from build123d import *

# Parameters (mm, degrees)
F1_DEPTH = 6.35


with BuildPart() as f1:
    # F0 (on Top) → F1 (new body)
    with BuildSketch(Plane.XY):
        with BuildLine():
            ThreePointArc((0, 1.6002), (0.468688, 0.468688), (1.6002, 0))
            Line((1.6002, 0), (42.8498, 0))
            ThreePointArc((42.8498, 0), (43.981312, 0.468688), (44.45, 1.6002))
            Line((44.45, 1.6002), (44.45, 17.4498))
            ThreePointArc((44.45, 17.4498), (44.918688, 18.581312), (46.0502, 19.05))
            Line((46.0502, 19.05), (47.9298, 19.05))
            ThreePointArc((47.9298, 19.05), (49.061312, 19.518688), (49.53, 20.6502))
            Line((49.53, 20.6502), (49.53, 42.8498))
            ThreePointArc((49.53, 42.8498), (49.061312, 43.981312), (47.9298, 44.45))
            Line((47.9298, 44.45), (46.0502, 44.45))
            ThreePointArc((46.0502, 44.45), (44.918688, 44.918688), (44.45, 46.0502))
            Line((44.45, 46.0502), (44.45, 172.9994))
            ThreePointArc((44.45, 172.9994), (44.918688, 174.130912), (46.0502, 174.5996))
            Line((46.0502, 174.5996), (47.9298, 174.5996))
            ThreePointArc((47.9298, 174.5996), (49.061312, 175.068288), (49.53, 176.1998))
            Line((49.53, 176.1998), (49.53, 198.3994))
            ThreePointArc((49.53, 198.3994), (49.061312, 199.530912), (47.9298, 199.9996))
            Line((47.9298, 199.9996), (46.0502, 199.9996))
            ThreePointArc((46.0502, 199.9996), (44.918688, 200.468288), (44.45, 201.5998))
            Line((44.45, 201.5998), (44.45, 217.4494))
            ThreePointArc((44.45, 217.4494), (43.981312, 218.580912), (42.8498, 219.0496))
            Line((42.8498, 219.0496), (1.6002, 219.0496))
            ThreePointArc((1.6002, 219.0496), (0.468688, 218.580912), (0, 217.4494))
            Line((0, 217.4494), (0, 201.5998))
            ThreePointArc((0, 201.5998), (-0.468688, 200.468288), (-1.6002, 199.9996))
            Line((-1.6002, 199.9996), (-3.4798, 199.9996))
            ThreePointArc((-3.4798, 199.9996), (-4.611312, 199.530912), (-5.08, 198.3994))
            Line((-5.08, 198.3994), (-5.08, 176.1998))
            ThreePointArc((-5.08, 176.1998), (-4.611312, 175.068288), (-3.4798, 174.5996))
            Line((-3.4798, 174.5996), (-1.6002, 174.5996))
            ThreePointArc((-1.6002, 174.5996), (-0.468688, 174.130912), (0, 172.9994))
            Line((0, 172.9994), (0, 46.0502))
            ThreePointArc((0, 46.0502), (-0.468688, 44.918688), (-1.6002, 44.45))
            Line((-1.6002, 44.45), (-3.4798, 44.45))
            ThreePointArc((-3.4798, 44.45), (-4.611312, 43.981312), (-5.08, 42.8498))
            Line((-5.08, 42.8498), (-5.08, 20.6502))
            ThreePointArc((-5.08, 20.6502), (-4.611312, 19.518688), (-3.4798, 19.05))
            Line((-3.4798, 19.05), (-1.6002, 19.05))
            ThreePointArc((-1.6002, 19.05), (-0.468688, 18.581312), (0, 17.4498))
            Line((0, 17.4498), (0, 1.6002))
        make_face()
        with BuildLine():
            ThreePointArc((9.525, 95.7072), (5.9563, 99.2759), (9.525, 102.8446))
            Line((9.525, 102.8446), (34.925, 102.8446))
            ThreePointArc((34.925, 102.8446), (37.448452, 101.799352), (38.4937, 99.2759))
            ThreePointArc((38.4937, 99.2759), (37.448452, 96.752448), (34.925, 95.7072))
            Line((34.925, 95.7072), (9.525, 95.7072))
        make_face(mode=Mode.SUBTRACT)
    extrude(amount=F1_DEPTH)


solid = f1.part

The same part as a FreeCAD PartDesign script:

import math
import FreeCAD as App
import Part
import Sketcher
Q = App.Units.Quantity

doc = App.newDocument("Part")
body = doc.addObject("PartDesign::Body", "Body")

# Sketch on XY plane
sketch1 = body.newObject("Sketcher::SketchObject", "Sketch")
sketch1.AttachmentSupport = (doc.getObject("XY_Plane"), [""])
sketch1.MapMode = "FlatFace"
sketch1.addGeometry([
    Part.ArcOfCircle(Part.Circle(App.Vector(1.600201, 1.600201, 0), App.Vector(0, 0, 1), 1.600201), math.radians(-179.999967), math.radians(-90.000033)),  # 0
    Part.LineSegment(App.Vector(1.6002, 0, 0), App.Vector(42.8498, 0, 0)),  # 1
    Part.ArcOfCircle(Part.Circle(App.Vector(42.849799, 1.600201, 0), App.Vector(0, 0, 1), 1.600201), math.radians(-89.999967), math.radians(-0.000033)),  # 2
    Part.LineSegment(App.Vector(44.45, 1.6002, 0), App.Vector(44.45, 17.4498, 0)),  # 3
    Part.ArcOfCircle(Part.Circle(App.Vector(46.050201, 17.449799, 0), App.Vector(0, 0, 1), 1.600201), math.radians(90.000033), math.radians(179.999967)),  # 4
    Part.LineSegment(App.Vector(46.0502, 19.05, 0), App.Vector(47.9298, 19.05, 0)),  # 5
    Part.ArcOfCircle(Part.Circle(App.Vector(47.929799, 20.650201, 0), App.Vector(0, 0, 1), 1.600201), math.radians(-89.999967), math.radians(-0.000033)),  # 6
    Part.LineSegment(App.Vector(49.53, 20.6502, 0), App.Vector(49.53, 42.8498, 0)),  # 7
    Part.ArcOfCircle(Part.Circle(App.Vector(47.929799, 42.849799, 0), App.Vector(0, 0, 1), 1.600201), math.radians(0.000033), math.radians(89.999967)),  # 8
    Part.LineSegment(App.Vector(47.9298, 44.45, 0), App.Vector(46.0502, 44.45, 0)),  # 9
    Part.ArcOfCircle(Part.Circle(App.Vector(46.050201, 46.050201, 0), App.Vector(0, 0, 1), 1.600201), math.radians(-179.999967), math.radians(-90.000033)),  # 10
    Part.LineSegment(App.Vector(44.45, 46.0502, 0), App.Vector(44.45, 172.9994, 0)),  # 11
    Part.ArcOfCircle(Part.Circle(App.Vector(46.050201, 172.999399, 0), App.Vector(0, 0, 1), 1.600201), math.radians(90.000033), math.radians(179.999967)),  # 12
    Part.LineSegment(App.Vector(46.0502, 174.5996, 0), App.Vector(47.9298, 174.5996, 0)),  # 13
    Part.ArcOfCircle(Part.Circle(App.Vector(47.929799, 176.199801, 0), App.Vector(0, 0, 1), 1.600201), math.radians(-89.999967), math.radians(-0.000033)),  # 14
    Part.LineSegment(App.Vector(49.53, 176.1998, 0), App.Vector(49.53, 198.3994, 0)),  # 15
    Part.ArcOfCircle(Part.Circle(App.Vector(47.929799, 198.399399, 0), App.Vector(0, 0, 1), 1.600201), math.radians(0.000033), math.radians(89.999967)),  # 16
    Part.LineSegment(App.Vector(47.9298, 199.9996, 0), App.Vector(46.0502, 199.9996, 0)),  # 17
    Part.ArcOfCircle(Part.Circle(App.Vector(46.050201, 201.599801, 0), App.Vector(0, 0, 1), 1.600201), math.radians(-179.999967), math.radians(-90.000033)),  # 18
    Part.LineSegment(App.Vector(44.45, 201.5998, 0), App.Vector(44.45, 217.4494, 0)),  # 19
    Part.ArcOfCircle(Part.Circle(App.Vector(42.849799, 217.449399, 0), App.Vector(0, 0, 1), 1.600201), math.radians(0.000033), math.radians(89.999967)),  # 20
    Part.LineSegment(App.Vector(42.8498, 219.0496, 0), App.Vector(1.6002, 219.0496, 0)),  # 21
    Part.ArcOfCircle(Part.Circle(App.Vector(1.600201, 217.449399, 0), App.Vector(0, 0, 1), 1.600201), math.radians(90.000033), math.radians(179.999967)),  # 22
    Part.LineSegment(App.Vector(0, 217.4494, 0), App.Vector(0, 201.5998, 0)),  # 23
    Part.ArcOfCircle(Part.Circle(App.Vector(-1.600201, 201.599801, 0), App.Vector(0, 0, 1), 1.600201), math.radians(-89.999967), math.radians(-0.000033)),  # 24
    Part.LineSegment(App.Vector(-1.6002, 199.9996, 0), App.Vector(-3.4798, 199.9996, 0)),  # 25
    Part.ArcOfCircle(Part.Circle(App.Vector(-3.479799, 198.399399, 0), App.Vector(0, 0, 1), 1.600201), math.radians(90.000033), math.radians(179.999967)),  # 26
    Part.LineSegment(App.Vector(-5.08, 198.3994, 0), App.Vector(-5.08, 176.1998, 0)),  # 27
    Part.ArcOfCircle(Part.Circle(App.Vector(-3.479799, 176.199801, 0), App.Vector(0, 0, 1), 1.600201), math.radians(-179.999967), math.radians(-90.000033)),  # 28
    Part.LineSegment(App.Vector(-3.4798, 174.5996, 0), App.Vector(-1.6002, 174.5996, 0)),  # 29
    Part.ArcOfCircle(Part.Circle(App.Vector(-1.600201, 172.999399, 0), App.Vector(0, 0, 1), 1.600201), math.radians(0.000033), math.radians(89.999967)),  # 30
    Part.LineSegment(App.Vector(0, 172.9994, 0), App.Vector(0, 46.0502, 0)),  # 31
    Part.ArcOfCircle(Part.Circle(App.Vector(-1.600201, 46.050201, 0), App.Vector(0, 0, 1), 1.600201), math.radians(-89.999967), math.radians(-0.000033)),  # 32
    Part.LineSegment(App.Vector(-1.6002, 44.45, 0), App.Vector(-3.4798, 44.45, 0)),  # 33
    Part.ArcOfCircle(Part.Circle(App.Vector(-3.479799, 42.849799, 0), App.Vector(0, 0, 1), 1.600201), math.radians(90.000033), math.radians(179.999967)),  # 34
    Part.LineSegment(App.Vector(-5.08, 42.8498, 0), App.Vector(-5.08, 20.6502, 0)),  # 35
    Part.ArcOfCircle(Part.Circle(App.Vector(-3.479799, 20.650201, 0), App.Vector(0, 0, 1), 1.600201), math.radians(-179.999967), math.radians(-90.000033)),  # 36
    Part.LineSegment(App.Vector(-3.4798, 19.05, 0), App.Vector(-1.6002, 19.05, 0)),  # 37
    Part.ArcOfCircle(Part.Circle(App.Vector(-1.600201, 17.449799, 0), App.Vector(0, 0, 1), 1.600201), math.radians(0.000033), math.radians(89.999967)),  # 38
    Part.LineSegment(App.Vector(0, 17.4498, 0), App.Vector(0, 1.6002, 0)),  # 39
    Part.LineSegment(App.Vector(34.925, 95.7072, 0), App.Vector(9.525, 95.7072, 0)),  # 40
    Part.ArcOfCircle(Part.Circle(App.Vector(9.525, 99.2759, 0), App.Vector(0, 0, 1), 3.5687), math.radians(90), math.radians(270)),  # 41
    Part.LineSegment(App.Vector(9.525, 102.8446, 0), App.Vector(34.925, 102.8446, 0)),  # 42
    Part.ArcOfCircle(Part.Circle(App.Vector(34.925, 99.2759, 0), App.Vector(0, 0, 1), 3.5687), math.radians(-0.000002), math.radians(90.000002)),  # 43
    Part.ArcOfCircle(Part.Circle(App.Vector(34.925, 99.2759, 0), App.Vector(0, 0, 1), 3.5687), math.radians(-90.000002), math.radians(0.000002)),  # 44
], False)
sketch1.addConstraint([
    Sketcher.Constraint("Tangent", 0, 2, 1, 1),
    Sketcher.Constraint("Tangent", 1, 2, 2, 1),
    Sketcher.Constraint("Tangent", 2, 2, 3, 1),
    Sketcher.Constraint("Tangent", 3, 2, 4, 2),
    Sketcher.Constraint("Tangent", 4, 1, 5, 1),
    Sketcher.Constraint("Tangent", 5, 2, 6, 1),
    Sketcher.Constraint("Tangent", 6, 2, 7, 1),
    Sketcher.Constraint("Tangent", 7, 2, 8, 1),
    Sketcher.Constraint("Tangent", 8, 2, 9, 1),
    Sketcher.Constraint("Tangent", 9, 2, 10, 2),
    Sketcher.Constraint("Tangent", 10, 1, 11, 1),
    Sketcher.Constraint("Tangent", 11, 2, 12, 2),
    Sketcher.Constraint("Tangent", 12, 1, 13, 1),
    Sketcher.Constraint("Tangent", 13, 2, 14, 1),
    Sketcher.Constraint("Tangent", 14, 2, 15, 1),
    Sketcher.Constraint("Tangent", 15, 2, 16, 1),
    Sketcher.Constraint("Tangent", 16, 2, 17, 1),
    Sketcher.Constraint("Tangent", 17, 2, 18, 2),
    Sketcher.Constraint("Tangent", 18, 1, 19, 1),
    Sketcher.Constraint("Tangent", 19, 2, 20, 1),
    Sketcher.Constraint("Tangent", 20, 2, 21, 1),
    Sketcher.Constraint("Tangent", 21, 2, 22, 1),
    Sketcher.Constraint("Tangent", 22, 2, 23, 1),
    Sketcher.Constraint("Tangent", 23, 2, 24, 2),
    Sketcher.Constraint("Tangent", 24, 1, 25, 1),
    Sketcher.Constraint("Tangent", 25, 2, 26, 1),
    Sketcher.Constraint("Tangent", 26, 2, 27, 1),
    Sketcher.Constraint("Tangent", 27, 2, 28, 1),
    Sketcher.Constraint("Tangent", 28, 2, 29, 1),
    Sketcher.Constraint("Tangent", 29, 2, 30, 2),
    Sketcher.Constraint("Tangent", 30, 1, 31, 1),
    Sketcher.Constraint("Tangent", 31, 2, 32, 2),
    Sketcher.Constraint("Tangent", 32, 1, 33, 1),
    Sketcher.Constraint("Tangent", 33, 2, 34, 1),
    Sketcher.Constraint("Tangent", 34, 2, 35, 1),
    Sketcher.Constraint("Tangent", 35, 2, 36, 1),
    Sketcher.Constraint("Tangent", 36, 2, 37, 1),
    Sketcher.Constraint("Tangent", 37, 2, 38, 2),
    Sketcher.Constraint("Tangent", 38, 1, 39, 1),
    Sketcher.Constraint("Tangent", 39, 2, 0, 1),
    Sketcher.Constraint("Tangent", 40, 2, 41, 2),
    Sketcher.Constraint("Tangent", 41, 1, 42, 1),
    Sketcher.Constraint("Tangent", 42, 2, 43, 2),
    Sketcher.Constraint("Tangent", 43, 1, 44, 2),
    Sketcher.Constraint("Tangent", 44, 1, 40, 1),
    Sketcher.Constraint("Horizontal", 1),
    Sketcher.Constraint("Vertical", 3),
    Sketcher.Constraint("Horizontal", 5),
    Sketcher.Constraint("Vertical", 7),
    Sketcher.Constraint("Horizontal", 9),
    Sketcher.Constraint("Vertical", 11),
    Sketcher.Constraint("Horizontal", 13),
    Sketcher.Constraint("Vertical", 15),
    Sketcher.Constraint("Horizontal", 17),
    Sketcher.Constraint("Vertical", 19),
    Sketcher.Constraint("Horizontal", 21),
    Sketcher.Constraint("Vertical", 23),
    Sketcher.Constraint("Horizontal", 25),
    Sketcher.Constraint("Vertical", 27),
    Sketcher.Constraint("Horizontal", 29),
    Sketcher.Constraint("Vertical", 31),
    Sketcher.Constraint("Horizontal", 33),
    Sketcher.Constraint("Vertical", 35),
    Sketcher.Constraint("Horizontal", 37),
    Sketcher.Constraint("Vertical", 39),
    Sketcher.Constraint("Horizontal", 40),
    Sketcher.Constraint("Horizontal", 42),
    Sketcher.Constraint("Equal", 0, 2),
    Sketcher.Constraint("Equal", 2, 4),
    Sketcher.Constraint("Equal", 4, 6),
    Sketcher.Constraint("Equal", 6, 8),
    Sketcher.Constraint("Equal", 8, 10),
    Sketcher.Constraint("Equal", 10, 12),
    Sketcher.Constraint("Equal", 12, 14),
    Sketcher.Constraint("Equal", 14, 16),
    Sketcher.Constraint("Equal", 16, 18),
    Sketcher.Constraint("Equal", 18, 20),
    Sketcher.Constraint("Equal", 20, 22),
    Sketcher.Constraint("Equal", 22, 24),
    Sketcher.Constraint("Equal", 24, 26),
    Sketcher.Constraint("Equal", 26, 28),
    Sketcher.Constraint("Equal", 28, 30),
    Sketcher.Constraint("Equal", 30, 32),
    Sketcher.Constraint("Equal", 32, 34),
    Sketcher.Constraint("Equal", 34, 36),
    Sketcher.Constraint("Equal", 36, 38),
    Sketcher.Constraint("Equal", 41, 43),
    Sketcher.Constraint("PointOnObject", 0, 2, -1),
    Sketcher.Constraint("PointOnObject", 22, 2, -2),
    Sketcher.Constraint("PointOnObject", 30, 1, -2),
    Sketcher.Constraint("PointOnObject", 38, 1, -2),
    Sketcher.Constraint("Horizontal", 18, 3, 24, 3),
    Sketcher.Constraint("Horizontal", 14, 3, 28, 3),
    Sketcher.Constraint("Horizontal", 10, 3, 32, 3),
    Sketcher.Constraint("Horizontal", 6, 3, 36, 3),
    Sketcher.Constraint("Horizontal", 44, 3, 43, 1),
    Sketcher.Constraint("Vertical", 4, 3, 10, 3),
    Sketcher.Constraint("Vertical", 8, 3, 14, 3),
    Sketcher.Constraint("Vertical", 12, 3, 18, 3),
    Sketcher.Constraint("Vertical", 28, 3, 34, 3),
    Sketcher.Constraint("Equal", 17, 25),
    Sketcher.Constraint("Equal", 7, 15),
    Sketcher.Constraint("Equal", 3, 19),
    Sketcher.Constraint("DistanceX", 40, 2, 40, 1, Q("1 in")),
    Sketcher.Constraint("Radius", 0, Q("0.063 in")),
    Sketcher.Constraint("DistanceX", 26, 2, -1, 1, Q("0.2 in")),
    Sketcher.Constraint("Radius", 41, Q("0.1405 in")),
    Sketcher.Constraint("DistanceX", 1, 1, 1, 2, Q("1.624 in")),
    Sketcher.Constraint("DistanceY", 3, 1, 3, 2, Q("0.624 in")),
    Sketcher.Constraint("DistanceY", 7, 1, 7, 2, Q("0.874 in")),
    Sketcher.Constraint("DistanceY", 11, 1, 11, 2, Q("4.998 in")),
    Sketcher.Constraint("DistanceX", -1, 1, 41, 3, Q("0.375 in")),
    Sketcher.Constraint("DistanceY", -1, 1, 40, 2, Q("3.768 in")),
])
pad1 = body.newObject("PartDesign::Pad", "Pad")
pad1.Profile = sketch1
pad1.Length = Q("0.25 in")

doc.recompute()
